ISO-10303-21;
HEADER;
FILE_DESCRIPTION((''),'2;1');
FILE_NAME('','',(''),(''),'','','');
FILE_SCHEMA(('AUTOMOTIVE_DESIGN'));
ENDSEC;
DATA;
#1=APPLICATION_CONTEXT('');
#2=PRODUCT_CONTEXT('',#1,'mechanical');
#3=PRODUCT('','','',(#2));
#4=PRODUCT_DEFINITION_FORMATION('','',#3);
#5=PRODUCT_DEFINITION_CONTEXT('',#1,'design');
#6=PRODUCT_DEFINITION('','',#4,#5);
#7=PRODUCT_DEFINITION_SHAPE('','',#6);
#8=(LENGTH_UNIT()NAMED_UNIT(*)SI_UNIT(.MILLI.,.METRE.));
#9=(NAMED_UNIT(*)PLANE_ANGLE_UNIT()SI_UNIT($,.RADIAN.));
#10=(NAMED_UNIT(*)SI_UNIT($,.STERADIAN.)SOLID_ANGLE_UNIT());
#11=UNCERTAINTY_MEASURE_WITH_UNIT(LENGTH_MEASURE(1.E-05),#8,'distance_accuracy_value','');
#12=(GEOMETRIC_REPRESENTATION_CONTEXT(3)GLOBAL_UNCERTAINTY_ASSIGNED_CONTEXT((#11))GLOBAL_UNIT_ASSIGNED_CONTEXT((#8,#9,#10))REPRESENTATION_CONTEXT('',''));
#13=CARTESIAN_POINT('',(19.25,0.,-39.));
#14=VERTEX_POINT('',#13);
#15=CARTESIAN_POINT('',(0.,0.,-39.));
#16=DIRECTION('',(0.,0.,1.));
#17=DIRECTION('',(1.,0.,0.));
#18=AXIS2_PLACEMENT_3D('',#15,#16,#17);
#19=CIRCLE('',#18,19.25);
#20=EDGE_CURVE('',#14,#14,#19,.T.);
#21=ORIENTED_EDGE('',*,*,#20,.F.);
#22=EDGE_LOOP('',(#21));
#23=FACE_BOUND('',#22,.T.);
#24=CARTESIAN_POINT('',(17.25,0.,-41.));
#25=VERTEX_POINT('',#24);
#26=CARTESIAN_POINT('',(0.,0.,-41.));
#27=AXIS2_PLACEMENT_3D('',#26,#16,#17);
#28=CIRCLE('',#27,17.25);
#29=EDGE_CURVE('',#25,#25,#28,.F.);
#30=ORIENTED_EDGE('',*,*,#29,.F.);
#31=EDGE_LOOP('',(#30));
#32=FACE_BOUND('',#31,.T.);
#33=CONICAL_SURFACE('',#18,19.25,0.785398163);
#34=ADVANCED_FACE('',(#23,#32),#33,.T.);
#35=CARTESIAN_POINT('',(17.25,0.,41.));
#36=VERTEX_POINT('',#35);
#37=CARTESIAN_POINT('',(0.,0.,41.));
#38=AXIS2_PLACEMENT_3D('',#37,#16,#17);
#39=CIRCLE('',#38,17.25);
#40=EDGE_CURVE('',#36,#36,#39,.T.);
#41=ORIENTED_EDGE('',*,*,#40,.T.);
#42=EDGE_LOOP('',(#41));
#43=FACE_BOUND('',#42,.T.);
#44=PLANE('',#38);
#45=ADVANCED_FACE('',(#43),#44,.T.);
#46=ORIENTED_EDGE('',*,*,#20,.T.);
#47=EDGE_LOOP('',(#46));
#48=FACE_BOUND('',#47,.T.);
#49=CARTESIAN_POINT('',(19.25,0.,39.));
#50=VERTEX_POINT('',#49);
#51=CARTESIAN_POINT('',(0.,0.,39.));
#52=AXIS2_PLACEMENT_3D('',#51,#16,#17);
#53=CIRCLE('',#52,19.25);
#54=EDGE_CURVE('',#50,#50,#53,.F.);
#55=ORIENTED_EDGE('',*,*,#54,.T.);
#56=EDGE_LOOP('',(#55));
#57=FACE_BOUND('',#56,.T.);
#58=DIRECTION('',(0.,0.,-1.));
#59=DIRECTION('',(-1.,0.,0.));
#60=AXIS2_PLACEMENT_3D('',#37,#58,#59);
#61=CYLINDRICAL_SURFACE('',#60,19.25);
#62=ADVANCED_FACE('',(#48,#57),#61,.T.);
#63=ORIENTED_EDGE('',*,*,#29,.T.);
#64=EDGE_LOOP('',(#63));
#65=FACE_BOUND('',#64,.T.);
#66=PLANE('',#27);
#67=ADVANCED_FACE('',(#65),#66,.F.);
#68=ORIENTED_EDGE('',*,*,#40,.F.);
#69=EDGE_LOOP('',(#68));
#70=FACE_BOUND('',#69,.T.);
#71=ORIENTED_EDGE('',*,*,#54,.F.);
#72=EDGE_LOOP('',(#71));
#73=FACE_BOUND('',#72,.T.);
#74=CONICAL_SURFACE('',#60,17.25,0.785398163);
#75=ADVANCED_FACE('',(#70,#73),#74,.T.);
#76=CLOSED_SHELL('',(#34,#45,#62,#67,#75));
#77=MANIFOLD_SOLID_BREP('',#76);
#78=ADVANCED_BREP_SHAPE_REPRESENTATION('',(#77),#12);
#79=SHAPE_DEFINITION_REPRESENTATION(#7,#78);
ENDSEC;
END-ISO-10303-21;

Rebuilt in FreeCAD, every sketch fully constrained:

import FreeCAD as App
import Part
import Sketcher
from FreeCAD import Vector
Q = App.Units.Quantity


def edges_at(feature, points):
    """Names of the edges that pass closest to the given points."""
    edges = feature.Shape.Edges
    near = lambda p: min(range(len(edges)), key=lambda i: edges[i].distToShape(Part.Vertex(*p))[0])
    return sorted({f"Edge{near(p) + 1}" for p in points})

doc = App.newDocument("Part")
params = doc.addObject("Spreadsheet::Sheet", "Params")
for row, (alias, value) in enumerate([
    ("sketch1_diameter", "38.5 mm"),
    ("pad1_length", "82 mm"),
    ("chamfer_size", "2 mm"),
], start=1):
    params.set(f"A{row}", alias)
    params.set(f"B{row}", "=" + value)
    params.setAlias(f"B{row}", alias)

body = doc.addObject("PartDesign::Body", "Body")

sketch1 = body.newObject("Sketcher::SketchObject", "Sketch")
sketch1.AttachmentSupport = (doc.getObject("XY_Plane"), [""])
sketch1.MapMode = "FlatFace"
sketch1.addGeometry(Part.Circle(Vector(0, 0, 0), Vector(0, 0, 1), 19), False)
sketch1.addConstraint(Sketcher.Constraint("Coincident", 0, 3, -1, 1))
sketch1.addConstraint(Sketcher.Constraint("Diameter", 0, Q("38.5 mm")))
sketch1.setExpression("Constraints[1]", "Params.sketch1_diameter")
pad1 = body.newObject("PartDesign::Pad", "Pad")
pad1.Profile = sketch1
pad1.setExpression("Length", "Params.pad1_length")
pad1.Midplane = True
doc.recompute()

chamfer = body.newObject("PartDesign::Chamfer", "Chamfer")
chamfer.Base = (pad1, edges_at(pad1, [(-19.25, 0, -41), (-19.25, 0, 41)]))
chamfer.setExpression("Size", "Params.chamfer_size")

doc.recompute()
